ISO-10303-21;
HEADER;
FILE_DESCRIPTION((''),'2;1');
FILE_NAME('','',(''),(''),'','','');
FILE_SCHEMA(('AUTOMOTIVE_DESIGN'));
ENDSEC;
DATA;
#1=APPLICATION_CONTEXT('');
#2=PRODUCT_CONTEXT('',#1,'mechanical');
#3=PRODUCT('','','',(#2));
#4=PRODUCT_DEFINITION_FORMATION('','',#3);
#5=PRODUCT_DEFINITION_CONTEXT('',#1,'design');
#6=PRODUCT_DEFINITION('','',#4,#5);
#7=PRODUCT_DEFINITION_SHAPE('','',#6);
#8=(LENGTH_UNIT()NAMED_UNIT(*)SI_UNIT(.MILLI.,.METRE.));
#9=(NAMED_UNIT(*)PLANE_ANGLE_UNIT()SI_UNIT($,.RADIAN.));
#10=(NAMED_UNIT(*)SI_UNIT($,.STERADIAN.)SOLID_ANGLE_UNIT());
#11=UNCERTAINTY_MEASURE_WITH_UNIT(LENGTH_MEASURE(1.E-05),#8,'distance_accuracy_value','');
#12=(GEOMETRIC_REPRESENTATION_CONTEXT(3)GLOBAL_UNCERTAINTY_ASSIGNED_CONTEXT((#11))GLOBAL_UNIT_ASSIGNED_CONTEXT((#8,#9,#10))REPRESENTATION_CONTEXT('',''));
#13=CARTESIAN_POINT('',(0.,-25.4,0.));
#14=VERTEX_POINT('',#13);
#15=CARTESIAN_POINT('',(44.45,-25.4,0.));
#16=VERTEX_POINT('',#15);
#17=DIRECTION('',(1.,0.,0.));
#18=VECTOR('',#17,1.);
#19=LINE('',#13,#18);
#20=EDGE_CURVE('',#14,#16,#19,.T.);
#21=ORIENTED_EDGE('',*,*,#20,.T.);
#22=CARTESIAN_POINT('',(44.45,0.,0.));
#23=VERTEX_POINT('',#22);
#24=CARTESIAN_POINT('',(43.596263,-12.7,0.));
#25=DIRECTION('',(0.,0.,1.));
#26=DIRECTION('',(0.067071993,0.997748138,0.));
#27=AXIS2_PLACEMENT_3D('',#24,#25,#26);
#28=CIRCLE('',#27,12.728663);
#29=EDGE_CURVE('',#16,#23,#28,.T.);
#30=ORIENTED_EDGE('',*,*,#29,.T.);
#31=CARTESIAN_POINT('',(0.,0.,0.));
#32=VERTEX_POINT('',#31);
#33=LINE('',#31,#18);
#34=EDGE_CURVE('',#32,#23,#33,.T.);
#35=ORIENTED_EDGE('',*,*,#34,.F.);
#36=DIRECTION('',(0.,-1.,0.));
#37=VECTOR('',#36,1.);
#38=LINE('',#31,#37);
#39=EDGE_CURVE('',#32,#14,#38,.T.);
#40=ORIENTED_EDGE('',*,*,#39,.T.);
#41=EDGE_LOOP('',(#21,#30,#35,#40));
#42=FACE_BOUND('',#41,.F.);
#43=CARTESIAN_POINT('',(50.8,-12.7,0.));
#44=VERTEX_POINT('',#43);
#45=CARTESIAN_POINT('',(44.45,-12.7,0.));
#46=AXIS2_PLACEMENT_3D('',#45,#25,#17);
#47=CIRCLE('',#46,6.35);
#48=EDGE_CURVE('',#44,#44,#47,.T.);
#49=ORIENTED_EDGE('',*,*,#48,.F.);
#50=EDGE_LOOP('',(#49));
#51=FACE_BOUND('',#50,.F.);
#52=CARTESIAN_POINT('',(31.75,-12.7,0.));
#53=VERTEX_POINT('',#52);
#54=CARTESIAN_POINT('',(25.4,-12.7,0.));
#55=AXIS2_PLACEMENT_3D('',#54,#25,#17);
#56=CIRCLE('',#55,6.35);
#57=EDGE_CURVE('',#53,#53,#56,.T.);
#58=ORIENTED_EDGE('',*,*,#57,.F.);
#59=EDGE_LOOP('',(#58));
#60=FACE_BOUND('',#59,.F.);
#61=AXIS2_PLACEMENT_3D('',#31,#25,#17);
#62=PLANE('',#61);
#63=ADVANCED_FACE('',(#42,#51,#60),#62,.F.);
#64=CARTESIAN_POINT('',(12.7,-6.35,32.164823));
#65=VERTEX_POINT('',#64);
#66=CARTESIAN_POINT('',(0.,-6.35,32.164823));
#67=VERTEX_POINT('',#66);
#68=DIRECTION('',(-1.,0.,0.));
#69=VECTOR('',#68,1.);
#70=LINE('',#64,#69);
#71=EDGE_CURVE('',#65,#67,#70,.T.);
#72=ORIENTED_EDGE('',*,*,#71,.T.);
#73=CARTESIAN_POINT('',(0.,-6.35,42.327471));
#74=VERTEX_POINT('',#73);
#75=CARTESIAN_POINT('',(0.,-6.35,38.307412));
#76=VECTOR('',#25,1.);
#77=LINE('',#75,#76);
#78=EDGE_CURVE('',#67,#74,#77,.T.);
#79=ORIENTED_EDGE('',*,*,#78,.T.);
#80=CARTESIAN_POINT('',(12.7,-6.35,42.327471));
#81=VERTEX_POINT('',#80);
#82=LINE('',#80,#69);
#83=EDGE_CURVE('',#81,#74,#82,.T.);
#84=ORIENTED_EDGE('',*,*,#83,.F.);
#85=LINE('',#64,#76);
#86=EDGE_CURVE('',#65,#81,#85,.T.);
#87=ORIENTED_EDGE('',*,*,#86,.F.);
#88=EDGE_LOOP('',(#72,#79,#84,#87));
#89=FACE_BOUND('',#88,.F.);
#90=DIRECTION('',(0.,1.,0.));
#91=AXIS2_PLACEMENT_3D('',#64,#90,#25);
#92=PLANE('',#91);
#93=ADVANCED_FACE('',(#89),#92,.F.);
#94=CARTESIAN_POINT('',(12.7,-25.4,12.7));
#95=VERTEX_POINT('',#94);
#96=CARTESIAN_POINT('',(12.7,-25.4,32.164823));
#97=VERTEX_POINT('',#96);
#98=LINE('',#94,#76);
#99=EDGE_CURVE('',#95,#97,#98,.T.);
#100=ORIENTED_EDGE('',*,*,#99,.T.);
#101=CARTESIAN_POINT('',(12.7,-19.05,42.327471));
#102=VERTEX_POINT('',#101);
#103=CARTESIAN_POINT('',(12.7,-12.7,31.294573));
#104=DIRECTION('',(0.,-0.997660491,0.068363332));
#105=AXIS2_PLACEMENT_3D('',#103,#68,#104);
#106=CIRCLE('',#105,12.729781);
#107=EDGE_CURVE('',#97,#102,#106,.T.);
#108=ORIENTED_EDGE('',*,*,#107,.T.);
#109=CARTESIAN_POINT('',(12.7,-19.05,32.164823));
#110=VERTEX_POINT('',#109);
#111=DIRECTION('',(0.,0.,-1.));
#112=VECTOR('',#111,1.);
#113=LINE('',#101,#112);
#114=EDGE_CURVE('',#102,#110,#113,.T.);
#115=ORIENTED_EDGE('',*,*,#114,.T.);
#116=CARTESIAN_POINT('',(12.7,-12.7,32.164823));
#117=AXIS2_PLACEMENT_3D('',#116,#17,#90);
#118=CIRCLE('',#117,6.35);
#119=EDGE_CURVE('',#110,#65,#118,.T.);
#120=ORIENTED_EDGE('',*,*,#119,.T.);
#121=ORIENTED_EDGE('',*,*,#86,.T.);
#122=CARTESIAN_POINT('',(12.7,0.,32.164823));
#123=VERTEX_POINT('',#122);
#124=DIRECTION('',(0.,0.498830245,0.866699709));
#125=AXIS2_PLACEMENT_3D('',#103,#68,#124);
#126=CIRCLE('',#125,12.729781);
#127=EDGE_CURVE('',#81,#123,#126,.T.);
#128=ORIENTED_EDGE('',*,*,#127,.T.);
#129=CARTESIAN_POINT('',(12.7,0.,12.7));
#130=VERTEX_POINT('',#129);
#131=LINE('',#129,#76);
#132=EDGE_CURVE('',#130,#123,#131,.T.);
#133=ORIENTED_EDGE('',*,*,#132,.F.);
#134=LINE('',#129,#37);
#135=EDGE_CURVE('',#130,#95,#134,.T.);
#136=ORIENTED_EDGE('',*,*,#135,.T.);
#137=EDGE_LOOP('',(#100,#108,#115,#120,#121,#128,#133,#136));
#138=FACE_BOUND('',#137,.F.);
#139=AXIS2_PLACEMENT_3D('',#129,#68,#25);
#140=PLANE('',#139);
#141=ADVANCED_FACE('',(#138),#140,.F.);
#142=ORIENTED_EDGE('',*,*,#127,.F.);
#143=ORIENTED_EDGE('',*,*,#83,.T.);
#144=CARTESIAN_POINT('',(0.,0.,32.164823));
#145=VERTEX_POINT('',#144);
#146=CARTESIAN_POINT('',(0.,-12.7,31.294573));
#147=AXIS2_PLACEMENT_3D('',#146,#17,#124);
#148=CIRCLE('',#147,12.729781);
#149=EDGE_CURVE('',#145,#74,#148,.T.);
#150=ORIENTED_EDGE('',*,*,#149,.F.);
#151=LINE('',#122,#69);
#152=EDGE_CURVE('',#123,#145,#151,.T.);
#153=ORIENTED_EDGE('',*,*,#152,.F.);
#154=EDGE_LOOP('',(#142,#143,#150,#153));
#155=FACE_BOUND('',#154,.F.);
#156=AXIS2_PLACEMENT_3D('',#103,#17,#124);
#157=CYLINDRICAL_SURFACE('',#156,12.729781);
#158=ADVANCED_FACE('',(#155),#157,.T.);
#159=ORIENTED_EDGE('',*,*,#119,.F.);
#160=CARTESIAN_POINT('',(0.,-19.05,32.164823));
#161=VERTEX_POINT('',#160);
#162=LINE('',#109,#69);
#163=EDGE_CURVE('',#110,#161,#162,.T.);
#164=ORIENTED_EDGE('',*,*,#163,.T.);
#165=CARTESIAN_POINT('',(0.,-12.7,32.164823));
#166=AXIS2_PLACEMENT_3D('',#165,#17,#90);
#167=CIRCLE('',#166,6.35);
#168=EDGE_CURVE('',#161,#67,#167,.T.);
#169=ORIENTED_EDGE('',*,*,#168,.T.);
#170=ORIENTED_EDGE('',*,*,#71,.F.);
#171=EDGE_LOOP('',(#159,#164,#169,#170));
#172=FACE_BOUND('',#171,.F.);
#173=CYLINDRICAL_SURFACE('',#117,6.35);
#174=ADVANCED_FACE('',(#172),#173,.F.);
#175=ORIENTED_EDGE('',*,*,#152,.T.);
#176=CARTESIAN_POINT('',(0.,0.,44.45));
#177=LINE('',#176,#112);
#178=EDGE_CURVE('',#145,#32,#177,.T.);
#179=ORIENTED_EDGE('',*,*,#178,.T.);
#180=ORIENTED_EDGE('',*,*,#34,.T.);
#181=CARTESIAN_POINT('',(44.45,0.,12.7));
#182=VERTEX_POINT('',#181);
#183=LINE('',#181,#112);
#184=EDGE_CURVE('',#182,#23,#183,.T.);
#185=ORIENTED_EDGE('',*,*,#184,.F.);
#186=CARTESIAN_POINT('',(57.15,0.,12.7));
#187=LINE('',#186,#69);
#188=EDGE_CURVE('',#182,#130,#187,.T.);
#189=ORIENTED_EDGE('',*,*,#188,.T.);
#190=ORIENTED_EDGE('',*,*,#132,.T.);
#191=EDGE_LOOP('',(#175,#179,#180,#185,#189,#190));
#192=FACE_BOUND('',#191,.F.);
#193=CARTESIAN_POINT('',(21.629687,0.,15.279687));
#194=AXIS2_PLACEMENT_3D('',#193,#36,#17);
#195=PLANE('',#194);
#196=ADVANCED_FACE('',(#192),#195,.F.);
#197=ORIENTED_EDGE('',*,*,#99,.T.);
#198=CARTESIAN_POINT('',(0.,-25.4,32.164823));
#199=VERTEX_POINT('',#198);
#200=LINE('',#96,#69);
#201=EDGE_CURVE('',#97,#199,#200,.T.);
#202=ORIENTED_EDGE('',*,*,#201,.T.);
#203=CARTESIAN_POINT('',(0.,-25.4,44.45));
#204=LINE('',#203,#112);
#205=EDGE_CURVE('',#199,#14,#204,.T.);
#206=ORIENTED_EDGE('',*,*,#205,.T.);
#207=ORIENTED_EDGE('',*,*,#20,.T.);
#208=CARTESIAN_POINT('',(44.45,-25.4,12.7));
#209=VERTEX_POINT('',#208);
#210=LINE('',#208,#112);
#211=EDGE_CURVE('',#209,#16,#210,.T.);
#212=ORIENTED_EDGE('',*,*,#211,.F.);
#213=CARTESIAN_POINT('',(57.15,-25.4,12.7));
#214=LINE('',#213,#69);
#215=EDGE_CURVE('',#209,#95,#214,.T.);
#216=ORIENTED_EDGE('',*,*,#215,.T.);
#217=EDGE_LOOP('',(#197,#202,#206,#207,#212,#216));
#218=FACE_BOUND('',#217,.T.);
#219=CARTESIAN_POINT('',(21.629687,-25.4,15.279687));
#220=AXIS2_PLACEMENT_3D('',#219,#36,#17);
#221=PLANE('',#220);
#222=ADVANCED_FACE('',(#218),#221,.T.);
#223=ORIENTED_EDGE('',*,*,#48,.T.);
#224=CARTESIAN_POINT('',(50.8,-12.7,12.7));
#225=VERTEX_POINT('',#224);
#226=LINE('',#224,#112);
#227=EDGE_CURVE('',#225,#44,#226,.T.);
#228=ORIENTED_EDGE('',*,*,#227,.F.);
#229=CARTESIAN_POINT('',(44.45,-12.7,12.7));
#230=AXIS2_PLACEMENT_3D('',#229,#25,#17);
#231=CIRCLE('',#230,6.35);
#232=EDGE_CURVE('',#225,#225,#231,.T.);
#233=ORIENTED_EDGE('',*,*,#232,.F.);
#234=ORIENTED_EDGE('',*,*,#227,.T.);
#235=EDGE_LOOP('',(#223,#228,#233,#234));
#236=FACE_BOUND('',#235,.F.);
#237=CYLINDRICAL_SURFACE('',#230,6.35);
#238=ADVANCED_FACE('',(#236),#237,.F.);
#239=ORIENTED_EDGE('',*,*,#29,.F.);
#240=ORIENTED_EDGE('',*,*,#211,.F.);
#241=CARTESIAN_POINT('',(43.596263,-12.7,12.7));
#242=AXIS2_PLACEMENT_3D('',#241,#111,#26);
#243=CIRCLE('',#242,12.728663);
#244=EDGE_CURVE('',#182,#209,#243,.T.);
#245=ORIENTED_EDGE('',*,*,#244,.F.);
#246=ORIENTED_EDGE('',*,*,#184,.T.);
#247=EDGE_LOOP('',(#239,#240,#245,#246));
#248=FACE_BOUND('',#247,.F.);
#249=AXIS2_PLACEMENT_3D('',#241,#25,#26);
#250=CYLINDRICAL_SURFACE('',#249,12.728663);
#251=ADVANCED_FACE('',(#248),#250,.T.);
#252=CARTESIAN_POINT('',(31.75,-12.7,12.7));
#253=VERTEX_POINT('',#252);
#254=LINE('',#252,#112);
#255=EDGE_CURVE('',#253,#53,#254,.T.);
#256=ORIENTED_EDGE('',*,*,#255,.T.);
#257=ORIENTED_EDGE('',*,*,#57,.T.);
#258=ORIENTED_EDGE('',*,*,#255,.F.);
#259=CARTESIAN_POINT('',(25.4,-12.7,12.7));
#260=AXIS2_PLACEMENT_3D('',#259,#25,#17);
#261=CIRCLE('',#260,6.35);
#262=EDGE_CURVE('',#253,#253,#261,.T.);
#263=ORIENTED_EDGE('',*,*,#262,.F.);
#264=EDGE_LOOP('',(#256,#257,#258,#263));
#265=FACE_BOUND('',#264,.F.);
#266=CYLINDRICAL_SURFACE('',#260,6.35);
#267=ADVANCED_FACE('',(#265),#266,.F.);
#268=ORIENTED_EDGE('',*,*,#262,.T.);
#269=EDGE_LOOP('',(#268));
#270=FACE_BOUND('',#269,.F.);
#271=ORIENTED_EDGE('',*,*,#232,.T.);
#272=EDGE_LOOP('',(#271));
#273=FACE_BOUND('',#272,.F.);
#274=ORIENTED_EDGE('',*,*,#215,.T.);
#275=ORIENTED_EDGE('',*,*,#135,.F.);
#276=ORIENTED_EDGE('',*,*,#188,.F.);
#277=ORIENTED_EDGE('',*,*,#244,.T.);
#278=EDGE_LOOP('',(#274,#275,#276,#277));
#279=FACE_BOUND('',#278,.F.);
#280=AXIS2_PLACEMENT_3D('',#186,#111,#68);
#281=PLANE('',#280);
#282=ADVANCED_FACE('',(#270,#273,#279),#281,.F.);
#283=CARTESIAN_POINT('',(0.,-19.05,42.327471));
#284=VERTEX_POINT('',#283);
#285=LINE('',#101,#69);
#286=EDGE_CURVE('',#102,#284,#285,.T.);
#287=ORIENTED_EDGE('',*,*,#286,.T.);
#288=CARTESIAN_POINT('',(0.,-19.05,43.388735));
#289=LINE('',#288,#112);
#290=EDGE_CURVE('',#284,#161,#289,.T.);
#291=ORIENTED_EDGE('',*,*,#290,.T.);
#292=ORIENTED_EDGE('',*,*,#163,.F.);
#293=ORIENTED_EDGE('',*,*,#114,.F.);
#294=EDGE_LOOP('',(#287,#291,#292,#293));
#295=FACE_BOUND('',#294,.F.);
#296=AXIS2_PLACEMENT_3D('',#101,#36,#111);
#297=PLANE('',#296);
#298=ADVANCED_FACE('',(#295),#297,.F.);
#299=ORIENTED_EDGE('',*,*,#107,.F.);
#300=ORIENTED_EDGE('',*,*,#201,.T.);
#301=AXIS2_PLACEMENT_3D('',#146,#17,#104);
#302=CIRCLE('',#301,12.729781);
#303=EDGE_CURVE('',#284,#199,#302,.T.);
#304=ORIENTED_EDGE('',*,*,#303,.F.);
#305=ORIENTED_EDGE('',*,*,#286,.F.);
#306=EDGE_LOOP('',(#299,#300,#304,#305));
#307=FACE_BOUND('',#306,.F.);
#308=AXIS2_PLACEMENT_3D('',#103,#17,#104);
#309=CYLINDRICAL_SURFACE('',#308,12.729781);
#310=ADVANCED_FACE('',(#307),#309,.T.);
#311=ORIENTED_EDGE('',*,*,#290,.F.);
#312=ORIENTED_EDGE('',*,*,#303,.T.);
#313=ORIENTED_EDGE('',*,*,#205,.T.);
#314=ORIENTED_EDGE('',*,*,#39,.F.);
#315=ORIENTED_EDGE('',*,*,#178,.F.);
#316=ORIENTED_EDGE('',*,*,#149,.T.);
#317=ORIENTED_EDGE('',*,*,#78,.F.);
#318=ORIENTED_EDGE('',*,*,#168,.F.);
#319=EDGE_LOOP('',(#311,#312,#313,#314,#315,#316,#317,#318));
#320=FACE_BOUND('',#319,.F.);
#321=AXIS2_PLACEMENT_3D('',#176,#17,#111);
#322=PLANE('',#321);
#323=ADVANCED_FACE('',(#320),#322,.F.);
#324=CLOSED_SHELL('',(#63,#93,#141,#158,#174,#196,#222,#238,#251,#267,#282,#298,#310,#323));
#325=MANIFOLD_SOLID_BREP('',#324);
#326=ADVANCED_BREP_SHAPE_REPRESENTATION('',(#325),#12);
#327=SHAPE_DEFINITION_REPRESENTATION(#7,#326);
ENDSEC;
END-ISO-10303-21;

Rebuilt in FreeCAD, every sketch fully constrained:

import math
import FreeCAD as App
import Part
import Sketcher

V = App.Vector
Q = App.Units.Quantity


def add_polygon(sketch, points):
    """Adds a closed chain of lines whose ends are joined by coincident constraints."""
    first, n = sketch.GeometryCount, len(points)
    for a, b in zip(points, points[1:] + points[:1]):
        sketch.addGeometry(Part.LineSegment(App.Vector(*a, 0), App.Vector(*b, 0)), False)
    for i in range(n):
        sketch.addConstraint(Sketcher.Constraint("Coincident", first + i, 2, first + (i + 1) % n, 1))

doc = App.newDocument("Part")
body = doc.addObject("PartDesign::Body", "Body")

# Sketch on XZ plane
sketch1 = body.newObject("Sketcher::SketchObject", "Sketch")
sketch1.AttachmentSupport = (doc.getObject("XZ_Plane"), [""])
sketch1.MapMode = "FlatFace"
add_polygon(sketch1, [(0, 44), (0, 0), (57, 0), (57, 13), (13, 13), (13, 44)])  # lines 0-5
sketch1.addConstraint([
    Sketcher.Constraint("Vertical", 0),
    Sketcher.Constraint("Horizontal", 1),
    Sketcher.Constraint("Vertical", 2),
    Sketcher.Constraint("Horizontal", 3),
    Sketcher.Constraint("Vertical", 4),
    Sketcher.Constraint("Horizontal", 5),
    Sketcher.Constraint("Coincident", 0, 2, -1, 1),
    Sketcher.Constraint("Equal", 3, 0),
    Sketcher.Constraint("Equal", 5, 2),
    Sketcher.Constraint("DistanceX", 5, 2, 5, 1, Q("0.5 in")),
    Sketcher.Constraint("DistanceX", 1, 1, 1, 2, Q("2.25 in")),
])
pad1 = body.newObject("PartDesign::Pad", "Pad")
pad1.Profile = sketch1
pad1.Length = Q("1 in")

# Sketch on YZ plane
sketch2 = body.newObject("Sketcher::SketchObject", "Sketch001")
sketch2.AttachmentSupport = (doc.getObject("YZ_Plane"), [""])
sketch2.MapMode = "FlatFace"
sketch2.AttachmentOffset = App.Placement(V(0, 0, 0.5 * 25.4), App.Rotation())
sketch2.addGeometry([
    Part.ArcOfCircle(Part.Circle(V(-13, 31, 0), V(0, 0, 1), 13), math.radians(120), math.radians(176)),  # 0
    Part.LineSegment(V(-19, 42, 0), V(-19, 32, 0)),  # 1
    Part.ArcOfCircle(Part.Circle(V(-13, 32, 0), V(0, 0, 1), 6), math.radians(180), math.radians(360)),  # 2
    Part.LineSegment(V(-6, 32, 0), V(-6, 42, 0)),  # 3
    Part.ArcOfCircle(Part.Circle(V(-13, 31, 0), V(0, 0, 1), 13), math.radians(4), math.radians(60)),  # 4
    Part.LineSegment(V(0, 32, 0), V(0, 44, 0)),  # 5
    Part.LineSegment(V(0, 44, 0), V(-25, 44, 0)),  # 6
    Part.LineSegment(V(-25, 44, 0), V(-25, 32, 0)),  # 7
], False)
sketch2.addConstraint([
    Sketcher.Constraint("Coincident", 0, 1, 1, 1),
    Sketcher.Constraint("Tangent", 1, 2, 2, 1),
    Sketcher.Constraint("Tangent", 2, 2, 3, 1),
    Sketcher.Constraint("Coincident", 3, 2, 4, 2),
    Sketcher.Constraint("Coincident", 4, 1, 5, 1),
    Sketcher.Constraint("Coincident", 5, 2, 6, 1),
    Sketcher.Constraint("Coincident", 6, 2, 7, 1),
    Sketcher.Constraint("Coincident", 7, 2, 0, 2),
    Sketcher.Constraint("Vertical", 1),
    Sketcher.Constraint("Vertical", 3),
    Sketcher.Constraint("Vertical", 5),
    Sketcher.Constraint("Horizontal", 6),
    Sketcher.Constraint("Vertical", 7),
    Sketcher.Constraint("Coincident", 4, 3, 0, 3),
    Sketcher.Constraint("Equal", 0, 4),
    Sketcher.Constraint("PointOnObject", 4, 1, -2),
    Sketcher.Constraint("Horizontal", 0, 1, 3, 2),
    Sketcher.Constraint("Horizontal", 2, 2, 4, 1),
    Sketcher.Constraint("Horizontal", 4, 1, 7, 2),
    Sketcher.Constraint("DistanceX", 6, 2, 6, 1, Q("1 in")),
    Sketcher.Constraint("Radius", 2, Q("0.25 in")),
    Sketcher.Constraint("DistanceY", -1, 1, 5, 2, Q("1.75 in")),
    Sketcher.Constraint("Radius", 0, 12.729781),
    Sketcher.Constraint("DistanceY", 5, 1, 5, 2, 12.285177),
])
pocket1 = body.newObject("PartDesign::Pocket", "Pocket")
pocket1.Profile = sketch2
pocket1.Length = Q("1 in")

# Sketch on XY plane
sketch3 = body.newObject("Sketcher::SketchObject", "Sketch002")
sketch3.AttachmentSupport = (doc.getObject("XY_Plane"), [""])
sketch3.MapMode = "FlatFace"
sketch3.AttachmentOffset = App.Placement(V(0, 0, 0.5 * 25.4), App.Rotation())
sketch3.addGeometry([
    Part.Circle(V(25, -13, 0), V(0, 0, 1), 6),  # 0
    Part.Circle(V(44, -13, 0), V(0, 0, 1), 6),  # 1
    Part.ArcOfCircle(Part.Circle(V(44, -13, 0), V(0, 0, 1), 13), math.radians(-86), math.radians(86)),  # 2
    Part.LineSegment(V(44, -25, 0), V(57, -25, 0)),  # 3
    Part.LineSegment(V(57, -25, 0), V(57, 0, 0)),  # 4
    Part.LineSegment(V(57, 0, 0), V(44, 0, 0)),  # 5
], False)
sketch3.addConstraint([
    Sketcher.Constraint("Coincident", 2, 1, 3, 1),
    Sketcher.Constraint("Coincident", 3, 2, 4, 1),
    Sketcher.Constraint("Coincident", 4, 2, 5, 1),
    Sketcher.Constraint("Coincident", 5, 2, 2, 2),
    Sketcher.Constraint("Horizontal", 3),
    Sketcher.Constraint("Vertical", 4),
    Sketcher.Constraint("Horizontal", 5),
    Sketcher.Constraint("Equal", 0, 1),
    Sketcher.Constraint("PointOnObject", 4, 2, -1),
    Sketcher.Constraint("Horizontal", 0, 3, 1, 3),
    Sketcher.Constraint("Horizontal", 1, 3, 2, 3),
    Sketcher.Constraint("Vertical", 1, 3, 2, 1),
    Sketcher.Constraint("Vertical", 2, 1, 5, 2),
    Sketcher.Constraint("Diameter", 0, Q("0.5 in")),
    Sketcher.Constraint("DistanceY", 4, 1, 4, 2, Q("1 in")),
    Sketcher.Constraint("DistanceX", 3, 1, 3, 2, Q("0.5 in")),
    Sketcher.Constraint("DistanceX", -1, 1, 0, 3, Q("1 in")),
    Sketcher.Constraint("DistanceX", -1, 1, 1, 3, Q("1.75 in")),
    Sketcher.Constraint("Radius", 2, 12.728663),
])
pocket2 = body.newObject("PartDesign::Pocket", "Pocket001")
pocket2.Profile = sketch3
pocket2.Length = Q("1 in")

doc.recompute()
